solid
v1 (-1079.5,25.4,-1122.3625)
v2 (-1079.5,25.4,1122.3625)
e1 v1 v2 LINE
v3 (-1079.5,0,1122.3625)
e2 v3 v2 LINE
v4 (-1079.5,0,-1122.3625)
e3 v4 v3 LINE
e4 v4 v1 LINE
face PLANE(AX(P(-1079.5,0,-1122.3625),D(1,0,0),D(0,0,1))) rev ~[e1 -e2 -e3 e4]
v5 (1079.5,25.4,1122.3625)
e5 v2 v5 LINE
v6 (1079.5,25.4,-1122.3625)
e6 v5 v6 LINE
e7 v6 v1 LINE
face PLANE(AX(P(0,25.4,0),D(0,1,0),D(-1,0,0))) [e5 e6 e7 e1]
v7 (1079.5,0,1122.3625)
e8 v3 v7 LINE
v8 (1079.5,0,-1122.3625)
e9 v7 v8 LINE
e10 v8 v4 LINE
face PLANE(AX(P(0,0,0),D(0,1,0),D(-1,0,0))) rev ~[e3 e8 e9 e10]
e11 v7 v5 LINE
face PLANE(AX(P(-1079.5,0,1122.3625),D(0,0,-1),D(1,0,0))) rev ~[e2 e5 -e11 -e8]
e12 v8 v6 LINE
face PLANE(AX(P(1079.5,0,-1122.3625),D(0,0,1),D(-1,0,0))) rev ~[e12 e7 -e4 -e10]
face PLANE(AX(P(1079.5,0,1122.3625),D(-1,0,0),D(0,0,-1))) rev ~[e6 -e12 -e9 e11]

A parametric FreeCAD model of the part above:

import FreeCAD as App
import Part
import Sketcher

V = App.Vector
Q = App.Units.Quantity


def add_polygon(sketch, points):
    """Adds a closed chain of lines whose ends are joined by coincident constraints."""
    first, n = sketch.GeometryCount, len(points)
    for a, b in zip(points, points[1:] + points[:1]):
        sketch.addGeometry(Part.LineSegment(App.Vector(*a, 0), App.Vector(*b, 0)), False)
    for i in range(n):
        sketch.addConstraint(Sketcher.Constraint("Coincident", first + i, 2, first + (i + 1) % n, 1))

doc = App.newDocument("Part")
body = doc.addObject("PartDesign::Body", "Body")

sketch1 = body.newObject("Sketcher::SketchObject", "Sketch")
sketch1.AttachmentSupport = (doc.getObject("XZ_Plane"), [""])
sketch1.MapMode = "FlatFace"
add_polygon(sketch1, [(-1080, 1122), (1080, 1122), (1080, -1122), (-1080, -1122)])
sketch1.addConstraint(Sketcher.Constraint("Horizontal", 0))
sketch1.addConstraint(Sketcher.Constraint("Vertical", 1))
sketch1.addConstraint(Sketcher.Constraint("Horizontal", 2))
sketch1.addConstraint(Sketcher.Constraint("Vertical", 3))
sketch1.addConstraint(Sketcher.Constraint("Symmetric", 0, 2, 2, 2, -1, 1))
sketch1.addConstraint(Sketcher.Constraint("DistanceX", 0, 1, 0, 2, Q("85 in")))
sketch1.addConstraint(Sketcher.Constraint("DistanceY", 1, 2, 1, 1, Q("88.375 in")))
pad1 = body.newObject("PartDesign::Pad", "Pad")
pad1.Profile = sketch1
pad1.Length = Q("1 in")
pad1.Reversed = True

doc.recompute()
